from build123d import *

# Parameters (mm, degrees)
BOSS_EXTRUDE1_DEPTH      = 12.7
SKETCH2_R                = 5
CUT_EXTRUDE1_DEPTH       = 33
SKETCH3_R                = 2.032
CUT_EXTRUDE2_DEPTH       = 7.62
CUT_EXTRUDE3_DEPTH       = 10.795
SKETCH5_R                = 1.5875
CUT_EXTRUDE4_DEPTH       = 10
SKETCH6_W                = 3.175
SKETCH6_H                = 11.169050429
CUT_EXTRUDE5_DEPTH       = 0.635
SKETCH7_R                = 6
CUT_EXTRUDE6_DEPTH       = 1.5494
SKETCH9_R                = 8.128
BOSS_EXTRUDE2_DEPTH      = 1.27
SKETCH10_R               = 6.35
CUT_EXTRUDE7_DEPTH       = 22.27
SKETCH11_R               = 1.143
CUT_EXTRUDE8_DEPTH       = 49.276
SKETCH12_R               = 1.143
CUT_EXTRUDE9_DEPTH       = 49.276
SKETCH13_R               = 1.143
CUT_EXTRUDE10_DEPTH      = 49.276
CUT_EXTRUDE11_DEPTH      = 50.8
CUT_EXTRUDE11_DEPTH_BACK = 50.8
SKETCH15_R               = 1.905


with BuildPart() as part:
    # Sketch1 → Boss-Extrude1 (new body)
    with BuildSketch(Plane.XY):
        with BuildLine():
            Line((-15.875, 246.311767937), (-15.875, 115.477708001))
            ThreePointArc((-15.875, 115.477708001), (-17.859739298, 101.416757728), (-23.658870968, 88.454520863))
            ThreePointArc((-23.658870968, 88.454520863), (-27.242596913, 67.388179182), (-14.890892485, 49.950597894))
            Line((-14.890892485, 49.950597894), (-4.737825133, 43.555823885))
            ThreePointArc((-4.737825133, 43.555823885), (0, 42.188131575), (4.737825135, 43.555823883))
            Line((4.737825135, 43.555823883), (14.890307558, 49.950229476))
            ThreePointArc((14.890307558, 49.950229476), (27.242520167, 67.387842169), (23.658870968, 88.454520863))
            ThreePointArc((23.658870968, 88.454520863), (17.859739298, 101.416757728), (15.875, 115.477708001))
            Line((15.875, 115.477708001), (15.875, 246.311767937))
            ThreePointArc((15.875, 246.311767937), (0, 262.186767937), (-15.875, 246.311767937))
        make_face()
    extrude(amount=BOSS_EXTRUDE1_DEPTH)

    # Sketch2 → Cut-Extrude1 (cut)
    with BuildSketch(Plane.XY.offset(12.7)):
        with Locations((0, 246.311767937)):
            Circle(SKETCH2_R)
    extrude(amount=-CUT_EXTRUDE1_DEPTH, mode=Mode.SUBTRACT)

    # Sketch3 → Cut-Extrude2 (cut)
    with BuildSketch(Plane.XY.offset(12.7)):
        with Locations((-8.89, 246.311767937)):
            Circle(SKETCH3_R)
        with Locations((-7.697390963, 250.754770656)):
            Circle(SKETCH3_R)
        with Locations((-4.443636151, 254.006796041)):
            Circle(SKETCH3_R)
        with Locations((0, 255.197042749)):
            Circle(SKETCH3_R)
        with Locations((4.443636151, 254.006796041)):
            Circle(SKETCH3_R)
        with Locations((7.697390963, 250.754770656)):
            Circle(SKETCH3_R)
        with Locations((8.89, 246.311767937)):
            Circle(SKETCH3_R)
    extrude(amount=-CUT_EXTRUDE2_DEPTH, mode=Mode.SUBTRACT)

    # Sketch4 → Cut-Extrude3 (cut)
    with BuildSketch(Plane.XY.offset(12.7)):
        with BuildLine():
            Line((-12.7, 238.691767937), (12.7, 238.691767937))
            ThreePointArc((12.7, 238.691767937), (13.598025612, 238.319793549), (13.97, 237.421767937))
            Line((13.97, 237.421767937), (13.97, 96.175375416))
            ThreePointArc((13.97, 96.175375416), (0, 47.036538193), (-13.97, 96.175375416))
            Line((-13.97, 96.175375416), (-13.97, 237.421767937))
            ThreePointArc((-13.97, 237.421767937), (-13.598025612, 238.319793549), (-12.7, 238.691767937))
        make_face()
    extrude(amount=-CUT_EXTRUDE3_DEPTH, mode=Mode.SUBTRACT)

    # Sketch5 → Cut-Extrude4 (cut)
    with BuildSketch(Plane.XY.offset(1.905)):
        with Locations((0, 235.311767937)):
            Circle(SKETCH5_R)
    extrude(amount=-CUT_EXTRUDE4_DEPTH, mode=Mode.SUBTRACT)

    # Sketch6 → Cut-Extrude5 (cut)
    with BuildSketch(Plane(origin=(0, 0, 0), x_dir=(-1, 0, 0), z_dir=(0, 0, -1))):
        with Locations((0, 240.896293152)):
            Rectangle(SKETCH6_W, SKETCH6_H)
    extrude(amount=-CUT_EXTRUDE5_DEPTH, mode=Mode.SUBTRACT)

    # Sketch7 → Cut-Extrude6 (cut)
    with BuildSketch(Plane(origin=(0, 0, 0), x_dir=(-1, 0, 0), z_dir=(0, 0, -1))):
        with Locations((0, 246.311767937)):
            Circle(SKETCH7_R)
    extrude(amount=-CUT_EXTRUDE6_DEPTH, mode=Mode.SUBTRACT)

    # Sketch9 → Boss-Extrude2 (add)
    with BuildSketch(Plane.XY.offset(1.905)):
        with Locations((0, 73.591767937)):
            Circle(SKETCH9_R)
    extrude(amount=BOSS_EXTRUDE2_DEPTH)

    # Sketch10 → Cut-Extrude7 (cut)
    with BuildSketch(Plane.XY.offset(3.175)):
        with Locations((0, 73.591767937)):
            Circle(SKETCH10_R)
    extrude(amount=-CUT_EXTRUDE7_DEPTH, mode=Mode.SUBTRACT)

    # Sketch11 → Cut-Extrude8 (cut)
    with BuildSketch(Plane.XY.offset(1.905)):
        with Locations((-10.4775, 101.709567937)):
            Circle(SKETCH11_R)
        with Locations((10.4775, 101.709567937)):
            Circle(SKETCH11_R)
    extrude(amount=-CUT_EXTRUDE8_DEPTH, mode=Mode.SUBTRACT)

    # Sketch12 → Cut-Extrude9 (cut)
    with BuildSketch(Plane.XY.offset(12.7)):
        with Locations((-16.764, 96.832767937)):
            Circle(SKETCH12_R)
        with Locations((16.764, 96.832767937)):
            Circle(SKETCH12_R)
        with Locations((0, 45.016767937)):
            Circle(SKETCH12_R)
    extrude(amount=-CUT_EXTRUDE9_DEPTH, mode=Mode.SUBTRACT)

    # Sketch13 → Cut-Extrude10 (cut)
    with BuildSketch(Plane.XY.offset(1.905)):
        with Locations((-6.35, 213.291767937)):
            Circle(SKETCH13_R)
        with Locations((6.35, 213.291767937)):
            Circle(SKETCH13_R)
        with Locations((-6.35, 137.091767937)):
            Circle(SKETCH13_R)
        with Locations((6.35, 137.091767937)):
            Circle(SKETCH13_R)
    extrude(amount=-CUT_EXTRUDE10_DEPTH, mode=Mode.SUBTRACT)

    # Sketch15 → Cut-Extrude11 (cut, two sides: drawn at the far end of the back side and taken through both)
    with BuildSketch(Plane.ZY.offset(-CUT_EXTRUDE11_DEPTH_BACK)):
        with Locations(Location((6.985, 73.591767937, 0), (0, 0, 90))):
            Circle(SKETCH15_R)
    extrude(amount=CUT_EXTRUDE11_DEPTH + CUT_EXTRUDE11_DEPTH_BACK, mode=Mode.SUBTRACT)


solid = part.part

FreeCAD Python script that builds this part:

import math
import FreeCAD as App
import Part
import Sketcher
from FreeCAD import Vector
Q = App.Units.Quantity

doc = App.newDocument("Part")
params = doc.addObject("Spreadsheet::Sheet", "Params")
for row, (alias, value) in enumerate([
    ("sketch1_radius", "2 in"),
    ("sketch1_radius2", "1.1 in"),
    ("sketch1_radius3", "0.35 in"),
    ("sketch1_radius4", "0.625 in"),
    ("pad1_length", "0.5 in"),
    ("pocket1_length", "33 mm"),
    ("sketch3_diameter", "0.16 in"),
    ("pocket2_length", "0.3 in"),
    ("sketch4_width", "1 in"),
    ("sketch4_radius", "0.05 in"),
    ("pocket3_length", "0.425 in"),
    ("sketch5_diameter", "0.125 in"),
    ("pocket4_length", "10 mm"),
    ("sketch6_width", "0.125 in"),
    ("pocket5_length", "0.025 in"),
    ("pocket6_length", "0.061 in"),
    ("sketch8_diameter", "0.64 in"),
    ("pad2_length", "0.05 in"),
    ("sketch9_diameter", "0.5 in"),
    ("pocket7_length", "22.27 mm"),
    ("sketch10_diameter", "0.09 in"),
    ("pocket8_length", "1.94 in"),
    ("sketch11_diameter", "0.09 in"),
    ("pocket9_length", "1.94 in"),
    ("sketch12_diameter", "0.09 in"),
    ("pocket10_length", "1.94 in"),
    ("sketch13_diameter", "0.15 in"),
], start=1):
    params.set(f"A{row}", alias)
    params.set(f"B{row}", "=" + value)
    params.setAlias(f"B{row}", alias)

body = doc.addObject("PartDesign::Body", "Body")

# Sketch on XY plane
sketch1 = doc.addObject("Sketcher::SketchObject", "Sketch")
body.addObject(sketch1)
sketch1.AttachmentSupport = (doc.XY_Plane, [""])
sketch1.MapMode = "FlatFace"
sketch1.addGeometry([
    Part.LineSegment(Vector(-15.875, 246.311768, 0), Vector(-15.875, 115.477708, 0)),  # 0
    Part.ArcOfCircle(Part.Circle(Vector(-66.675, 115.477708, 0), Vector(0, 0, 1), 50.8), math.radians(-32.137473), math.radians(0)),  # 1
    Part.ArcOfCircle(Part.Circle(Vector(0, 73.591768, 0), Vector(0, 0, 1), 27.94), math.radians(147.862527), math.radians(237.794355)),  # 2
    Part.LineSegment(Vector(-14.890892, 49.950598, 0), Vector(-4.737825, 43.555824, 0)),  # 3
    Part.ArcOfCircle(Part.Circle(Vector(0, 51.078132, 0), Vector(0, 0, 1), 8.89), math.radians(-122.204228), math.radians(-57.795772)),  # 4
    Part.LineSegment(Vector(4.737825, 43.555824, 0), Vector(14.890308, 49.950229, 0)),  # 5
    Part.ArcOfCircle(Part.Circle(Vector(0, 73.591768, 0), Vector(0, 0, 1), 27.94), math.radians(-57.795772), math.radians(32.137473)),  # 6
    Part.ArcOfCircle(Part.Circle(Vector(66.675, 115.477708, 0), Vector(0, 0, 1), 50.8), math.radians(-180), math.radians(-147.862527)),  # 7
    Part.LineSegment(Vector(15.875, 115.477708, 0), Vector(15.875, 246.311768, 0)),  # 8
    Part.ArcOfCircle(Part.Circle(Vector(0, 246.311768, 0), Vector(0, 0, 1), 15.875), math.radians(0), math.radians(180)),  # 9
], False)
sketch1.addConstraint([
    Sketcher.Constraint("Tangent", 0, 2, 1, 2),
    Sketcher.Constraint("Tangent", 1, 1, 2, 1),
    Sketcher.Constraint("Coincident", 2, 2, 3, 1),
    Sketcher.Constraint("Tangent", 3, 2, 4, 1),
    Sketcher.Constraint("Tangent", 4, 2, 5, 1),
    Sketcher.Constraint("Tangent", 5, 2, 6, 1),
    Sketcher.Constraint("Tangent", 6, 2, 7, 2),
    Sketcher.Constraint("Tangent", 7, 1, 8, 1),
    Sketcher.Constraint("Tangent", 8, 2, 9, 1),
    Sketcher.Constraint("Tangent", 9, 2, 0, 1),
    Sketcher.Constraint("Vertical", 0),
    Sketcher.Constraint("Vertical", 8),
    Sketcher.Constraint("Coincident", 6, 3, 2, 3),
    Sketcher.Constraint("Equal", 2, 6),
    Sketcher.Constraint("Equal", 1, 7),
    Sketcher.Constraint("Symmetric", 1, 3, 7, 3, -2),
    Sketcher.Constraint("PointOnObject", 4, 3, -2),
    Sketcher.Constraint("Radius", 1, Q("2 in")),
    Sketcher.Constraint("Radius", 2, Q("1.1 in")),
    Sketcher.Constraint("Radius", 4, Q("0.35 in")),
    Sketcher.Constraint("Radius", 9, Q("0.625 in")),
    Sketcher.Constraint("DistanceY", 6, 3, 9, 3, Q("6.8 in")),
    Sketcher.Constraint("Distance", 3, Q("11.99908 mm")),
    Sketcher.Constraint("Distance", 5, Q("11.998388 mm")),
    Sketcher.Constraint("DistanceY", -1, 1, 1, 3, Q("115.477708 mm")),
])
sketch1.setExpression("Constraints[17]", "Params.sketch1_radius")
sketch1.setExpression("Constraints[18]", "Params.sketch1_radius2")
sketch1.setExpression("Constraints[19]", "Params.sketch1_radius3")
sketch1.setExpression("Constraints[20]", "Params.sketch1_radius4")
pad1 = doc.addObject("PartDesign::Pad", "Pad")
body.addObject(pad1)
pad1.Profile = sketch1
pad1.setExpression("Length", "Params.pad1_length")

# Sketch on XY plane
sketch2 = doc.addObject("Sketcher::SketchObject", "Sketch001")
body.addObject(sketch2)
sketch2.AttachmentSupport = (doc.XY_Plane, [""])
sketch2.MapMode = "FlatFace"
sketch2.AttachmentOffset = App.Placement(Vector(0, 0, 0.5 * 25.4), App.Rotation())
sketch2.addGeometry(Part.Circle(Vector(0, 246.311768, 0), Vector(0, 0, 1), 5), False)
sketch2.addConstraint([
    Sketcher.Constraint("PointOnObject", 0, 3, -2),
    Sketcher.Constraint("Diameter", 0, Q("10 mm")),
    Sketcher.Constraint("DistanceY", -1, 1, 0, 3, Q("246.311768 mm")),
])
pocket1 = doc.addObject("PartDesign::Pocket", "Pocket")
body.addObject(pocket1)
pocket1.Profile = sketch2
pocket1.setExpression("Length", "Params.pocket1_length")

# Sketch on XY plane
sketch3 = doc.addObject("Sketcher::SketchObject", "Sketch002")
body.addObject(sketch3)
sketch3.AttachmentSupport = (doc.XY_Plane, [""])
sketch3.MapMode = "FlatFace"
sketch3.AttachmentOffset = App.Placement(Vector(0, 0, 0.5 * 25.4), App.Rotation())
sketch3.addGeometry([
    Part.Circle(Vector(-8.89, 246.311768, 0), Vector(0, 0, 1), 2.032),  # 0
    Part.Circle(Vector(-7.697391, 250.754771, 0), Vector(0, 0, 1), 2.032),  # 1
    Part.Circle(Vector(-4.443636, 254.006796, 0), Vector(0, 0, 1), 2.032),  # 2
    Part.Circle(Vector(0, 255.197043, 0), Vector(0, 0, 1), 2.032),  # 3
    Part.Circle(Vector(4.443636, 254.006796, 0), Vector(0, 0, 1), 2.032),  # 4
    Part.Circle(Vector(7.697391, 250.754771, 0), Vector(0, 0, 1), 2.032),  # 5
    Part.Circle(Vector(8.89, 246.311768, 0), Vector(0, 0, 1), 2.032),  # 6
], False)
sketch3.addConstraint([
    Sketcher.Constraint("Equal", 0, 1),
    Sketcher.Constraint("Equal", 1, 2),
    Sketcher.Constraint("Equal", 2, 3),
    Sketcher.Constraint("Equal", 3, 4),
    Sketcher.Constraint("Equal", 4, 5),
    Sketcher.Constraint("Equal", 5, 6),
    Sketcher.Constraint("Symmetric", 2, 3, 4, 3, -2),
    Sketcher.Constraint("Symmetric", 1, 3, 5, 3, -2),
    Sketcher.Constraint("Symmetric", 0, 3, 6, 3, -2),
    Sketcher.Constraint("PointOnObject", 3, 3, -2),
    Sketcher.Constraint("Diameter", 0, Q("0.16 in")),
    Sketcher.Constraint("DistanceX", 0, 3, -1, 1, Q("0.35 in")),
    Sketcher.Constraint("DistanceX", 1, 3, -1, 1, Q("7.697391 mm")),
    Sketcher.Constraint("DistanceY", -1, 1, 1, 3, Q("250.754771 mm")),
    Sketcher.Constraint("DistanceY", 0, 3, 2, 3, Q("7.695028 mm")),
    Sketcher.Constraint("DistanceY", -1, 1, 0, 3, Q("246.311768 mm")),
    Sketcher.Constraint("DistanceX", 2, 3, -1, 1, Q("4.443636 mm")),
    Sketcher.Constraint("DistanceY", -1, 1, 3, 3, Q("255.197043 mm")),
])
sketch3.setExpression("Constraints[10]", "Params.sketch3_diameter")
pocket2 = doc.addObject("PartDesign::Pocket", "Pocket001")
body.addObject(pocket2)
pocket2.Profile = sketch3
pocket2.setExpression("Length", "Params.pocket2_length")

# Sketch on XY plane
sketch4 = doc.addObject("Sketcher::SketchObject", "Sketch003")
body.addObject(sketch4)
sketch4.AttachmentSupport = (doc.XY_Plane, [""])
sketch4.MapMode = "FlatFace"
sketch4.AttachmentOffset = App.Placement(Vector(0, 0, 0.5 * 25.4), App.Rotation())
sketch4.addGeometry([
    Part.LineSegment(Vector(12.7, 238.691768, 0), Vector(-12.7, 238.691768, 0)),  # 0
    Part.ArcOfCircle(Part.Circle(Vector(-12.7, 237.421768, 0), Vector(0, 0, 1), 1.27), math.radians(90), math.radians(180)),  # 1
    Part.LineSegment(Vector(-13.97, 237.421768, 0), Vector(-13.97, 96.175375, 0)),  # 2
    Part.ArcOfCircle(Part.Circle(Vector(0, 73.591768, 0), Vector(0, 0, 1), 26.55523), math.radians(121.740532), math.radians(418.259468)),  # 3
    Part.LineSegment(Vector(13.97, 96.175375, 0), Vector(13.97, 237.421768, 0)),  # 4
    Part.ArcOfCircle(Part.Circle(Vector(12.7, 237.421768, 0), Vector(0, 0, 1), 1.27), math.radians(0), math.radians(90)),  # 5
], False)
sketch4.addConstraint([
    Sketcher.Constraint("Tangent", 0, 2, 1, 1),
    Sketcher.Constraint("Tangent", 1, 2, 2, 1),
    Sketcher.Constraint("Coincident", 2, 2, 3, 1),
    Sketcher.Constraint("Coincident", 3, 2, 4, 1),
    Sketcher.Constraint("Tangent", 4, 2, 5, 1),
    Sketcher.Constraint("Tangent", 5, 2, 0, 1),
    Sketcher.Constraint("Horizontal", 0),
    Sketcher.Constraint("Vertical", 2),
    Sketcher.Constraint("Vertical", 4),
    Sketcher.Constraint("Equal", 1, 5),
    Sketcher.Constraint("Symmetric", 2, 2, 3, 2, -2),
    Sketcher.Constraint("DistanceX", 0, 2, 0, 1, Q("1 in")),
    Sketcher.Constraint("Radius", 1, Q("0.05 in")),
    Sketcher.Constraint("DistanceY", 3, 3, 0, 2, Q("6.5 in")),
    Sketcher.Constraint("Radius", 3, Q("26.55523 mm")),
    Sketcher.Constraint("DistanceY", -1, 1, 1, 3, Q("237.421768 mm")),
])
sketch4.setExpression("Constraints[11]", "Params.sketch4_width")
sketch4.setExpression("Constraints[12]", "Params.sketch4_radius")
pocket3 = doc.addObject("PartDesign::Pocket", "Pocket002")
body.addObject(pocket3)
pocket3.Profile = sketch4
pocket3.setExpression("Length", "Params.pocket3_length")

# Sketch on XY plane
sketch5 = doc.addObject("Sketcher::SketchObject", "Sketch004")
body.addObject(sketch5)
sketch5.AttachmentSupport = (doc.XY_Plane, [""])
sketch5.MapMode = "FlatFace"
sketch5.AttachmentOffset = App.Placement(Vector(0, 0, 0.075 * 25.4), App.Rotation())
sketch5.addGeometry(Part.Circle(Vector(0, 235.311768, 0), Vector(0, 0, 1), 1.5875), False)
sketch5.addConstraint([
    Sketcher.Constraint("PointOnObject", 0, 3, -2),
    Sketcher.Constraint("Diameter", 0, Q("0.125 in")),
    Sketcher.Constraint("DistanceY", -1, 1, 0, 3, Q("235.311768 mm")),
])
sketch5.setExpression("Constraints[1]", "Params.sketch5_diameter")
pocket4 = doc.addObject("PartDesign::Pocket", "Pocket003")
body.addObject(pocket4)
pocket4.Profile = sketch5
pocket4.setExpression("Length", "Params.pocket4_length")

# Sketch on XY plane
sketch6 = doc.addObject("Sketcher::SketchObject", "Sketch005")
body.addObject(sketch6)
sketch6.AttachmentSupport = (doc.XY_Plane, [""])
sketch6.MapMode = "FlatFace"
sketch6.addGeometry([
    Part.LineSegment(Vector(1.5875, 246.480818, 0), Vector(1.5875, 235.311768, 0)),
    Part.LineSegment(Vector(1.5875, 235.311768, 0), Vector(-1.5875, 235.311768, 0)),
    Part.LineSegment(Vector(-1.5875, 235.311768, 0), Vector(-1.5875, 246.480818, 0)),
    Part.LineSegment(Vector(-1.5875, 246.480818, 0), Vector(1.5875, 246.480818, 0)),
], False)
sketch6.addConstraint([
    Sketcher.Constraint("Coincident", 0, 2, 1, 1),
    Sketcher.Constraint("Coincident", 1, 2, 2, 1),
    Sketcher.Constraint("Coincident", 2, 2, 3, 1),
    Sketcher.Constraint("Coincident", 3, 2, 0, 1),
    Sketcher.Constraint("Vertical", 0),
    Sketcher.Constraint("Horizontal", 1),
    Sketcher.Constraint("Vertical", 2),
    Sketcher.Constraint("Horizontal", 3),
    Sketcher.Constraint("DistanceX", 1, 2, 1, 1, Q("0.125 in")),
    Sketcher.Constraint("DistanceX", -1, 1, 0, 2, Q("0.0625 in")),
    Sketcher.Constraint("DistanceY", 0, 2, 0, 1, Q("11.16905 mm")),
    Sketcher.Constraint("DistanceY", -1, 1, 2, 2, Q("246.480818 mm")),
])
sketch6.setExpression("Constraints[8]", "Params.sketch6_width")
pocket5 = doc.addObject("PartDesign::Pocket", "Pocket004")
body.addObject(pocket5)
pocket5.Profile = sketch6
pocket5.setExpression("Length", "Params.pocket5_length")
pocket5.Reversed = True

# Sketch on XY plane
sketch7 = doc.addObject("Sketcher::SketchObject", "Sketch006")
body.addObject(sketch7)
sketch7.AttachmentSupport = (doc.XY_Plane, [""])
sketch7.MapMode = "FlatFace"
sketch7.addGeometry(Part.Circle(Vector(0, 246.311768, 0), Vector(0, 0, 1), 6), False)
sketch7.addConstraint([
    Sketcher.Constraint("PointOnObject", 0, 3, -2),
    Sketcher.Constraint("Diameter", 0, Q("12 mm")),
    Sketcher.Constraint("DistanceY", -1, 1, 0, 3, Q("246.311768 mm")),
])
pocket6 = doc.addObject("PartDesign::Pocket", "Pocket005")
body.addObject(pocket6)
pocket6.Profile = sketch7
pocket6.setExpression("Length", "Params.pocket6_length")
pocket6.Reversed = True

# Sketch on XY plane
sketch8 = doc.addObject("Sketcher::SketchObject", "Sketch007")
body.addObject(sketch8)
sketch8.AttachmentSupport = (doc.XY_Plane, [""])
sketch8.MapMode = "FlatFace"
sketch8.AttachmentOffset = App.Placement(Vector(0, 0, 0.075 * 25.4), App.Rotation())
sketch8.addGeometry(Part.Circle(Vector(0, 73.591768, 0), Vector(0, 0, 1), 8.128), False)
sketch8.addConstraint([
    Sketcher.Constraint("PointOnObject", 0, 3, -2),
    Sketcher.Constraint("Diameter", 0, Q("0.64 in")),
    Sketcher.Constraint("DistanceY", -1, 1, 0, 3, Q("73.591768 mm")),
])
sketch8.setExpression("Constraints[1]", "Params.sketch8_diameter")
pad2 = doc.addObject("PartDesign::Pad", "Pad001")
body.addObject(pad2)
pad2.Profile = sketch8
pad2.setExpression("Length", "Params.pad2_length")

# Sketch on XY plane
sketch9 = doc.addObject("Sketcher::SketchObject", "Sketch008")
body.addObject(sketch9)
sketch9.AttachmentSupport = (doc.XY_Plane, [""])
sketch9.MapMode = "FlatFace"
sketch9.AttachmentOffset = App.Placement(Vector(0, 0, 0.125 * 25.4), App.Rotation())
sketch9.addGeometry(Part.Circle(Vector(0, 73.591768, 0), Vector(0, 0, 1), 6.35), False)
sketch9.addConstraint([
    Sketcher.Constraint("PointOnObject", 0, 3, -2),
    Sketcher.Constraint("Diameter", 0, Q("0.5 in")),
    Sketcher.Constraint("DistanceY", -1, 1, 0, 3, Q("73.591768 mm")),
])
sketch9.setExpression("Constraints[1]", "Params.sketch9_diameter")
pocket7 = doc.addObject("PartDesign::Pocket", "Pocket006")
body.addObject(pocket7)
pocket7.Profile = sketch9
pocket7.setExpression("Length", "Params.pocket7_length")

# Sketch on XY plane
sketch10 = doc.addObject("Sketcher::SketchObject", "Sketch009")
body.addObject(sketch10)
sketch10.AttachmentSupport = (doc.XY_Plane, [""])
sketch10.MapMode = "FlatFace"
sketch10.AttachmentOffset = App.Placement(Vector(0, 0, 0.075 * 25.4), App.Rotation())
sketch10.addGeometry([
    Part.Circle(Vector(-10.4775, 101.709568, 0), Vector(0, 0, 1), 1.143),
    Part.Circle(Vector(10.4775, 101.709568, 0), Vector(0, 0, 1), 1.143),
], False)
sketch10.addConstraint([
    Sketcher.Constraint("Equal", 0, 1),
    Sketcher.Constraint("Symmetric", 0, 3, 1, 3, -2),
    Sketcher.Constraint("Diameter", 0, Q("0.09 in")),
    Sketcher.Constraint("DistanceX", 0, 3, 1, 3, Q("0.825 in")),
    Sketcher.Constraint("DistanceY", -1, 1, 0, 3, Q("101.709568 mm")),
])
sketch10.setExpression("Constraints[2]", "Params.sketch10_diameter")
pocket8 = doc.addObject("PartDesign::Pocket", "Pocket007")
body.addObject(pocket8)
pocket8.Profile = sketch10
pocket8.setExpression("Length", "Params.pocket8_length")

# Sketch on XY plane
sketch11 = doc.addObject("Sketcher::SketchObject", "Sketch010")
body.addObject(sketch11)
sketch11.AttachmentSupport = (doc.XY_Plane, [""])
sketch11.MapMode = "FlatFace"
sketch11.AttachmentOffset = App.Placement(Vector(0, 0, 0.5 * 25.4), App.Rotation())
sketch11.addGeometry([
    Part.Circle(Vector(-16.764, 96.832768, 0), Vector(0, 0, 1), 1.143),
    Part.Circle(Vector(16.764, 96.832768, 0), Vector(0, 0, 1), 1.143),
    Part.Circle(Vector(0, 45.016768, 0), Vector(0, 0, 1), 1.143),
], False)
sketch11.addConstraint([
    Sketcher.Constraint("Equal", 0, 1),
    Sketcher.Constraint("Equal", 1, 2),
    Sketcher.Constraint("Symmetric", 0, 3, 1, 3, -2),
    Sketcher.Constraint("PointOnObject", 2, 3, -2),
    Sketcher.Constraint("Diameter", 0, Q("0.09 in")),
    Sketcher.Constraint("DistanceX", 0, 3, -1, 1, Q("0.66 in")),
    Sketcher.Constraint("DistanceY", 2, 3, 0, 3, Q("2.04 in")),
    Sketcher.Constraint("DistanceY", -1, 1, 0, 3, Q("96.832768 mm")),
])
sketch11.setExpression("Constraints[4]", "Params.sketch11_diameter")
pocket9 = doc.addObject("PartDesign::Pocket", "Pocket008")
body.addObject(pocket9)
pocket9.Profile = sketch11
pocket9.setExpression("Length", "Params.pocket9_length")

# Sketch on XY plane
sketch12 = doc.addObject("Sketcher::SketchObject", "Sketch011")
body.addObject(sketch12)
sketch12.AttachmentSupport = (doc.XY_Plane, [""])
sketch12.MapMode = "FlatFace"
sketch12.AttachmentOffset = App.Placement(Vector(0, 0, 0.075 * 25.4), App.Rotation())
sketch12.addGeometry([
    Part.Circle(Vector(-6.35, 213.291768, 0), Vector(0, 0, 1), 1.143),
    Part.Circle(Vector(6.35, 213.291768, 0), Vector(0, 0, 1), 1.143),
    Part.Circle(Vector(-6.35, 137.091768, 0), Vector(0, 0, 1), 1.143),
    Part.Circle(Vector(6.35, 137.091768, 0), Vector(0, 0, 1), 1.143),
], False)
sketch12.addConstraint([
    Sketcher.Constraint("Equal", 0, 1),
    Sketcher.Constraint("Equal", 1, 2),
    Sketcher.Constraint("Equal", 2, 3),
    Sketcher.Constraint("Symmetric", 0, 3, 1, 3, -2),
    Sketcher.Constraint("Symmetric", 2, 3, 3, 3, -2),
    Sketcher.Constraint("Vertical", 0, 3, 2, 3),
    Sketcher.Constraint("Diameter", 0, Q("0.09 in")),
    Sketcher.Constraint("DistanceY", 2, 3, 0, 3, Q("3 in")),
    Sketcher.Constraint("DistanceX", 0, 3, 1, 3, Q("0.5 in")),
    Sketcher.Constraint("DistanceY", -1, 1, 0, 3, Q("213.291768 mm")),
])
sketch12.setExpression("Constraints[6]", "Params.sketch12_diameter")
pocket10 = doc.addObject("PartDesign::Pocket", "Pocket009")
body.addObject(pocket10)
pocket10.Profile = sketch12
pocket10.setExpression("Length", "Params.pocket10_length")

# Sketch on YZ plane
sketch13 = doc.addObject("Sketcher::SketchObject", "Sketch012")
body.addObject(sketch13)
sketch13.AttachmentSupport = (doc.YZ_Plane, [""])
sketch13.MapMode = "FlatFace"
sketch13.addGeometry(Part.Circle(Vector(73.591768, 6.985, 0), Vector(0, 0, 1), 1.905), False)
sketch13.addConstraint([
    Sketcher.Constraint("Diameter", 0, Q("0.15 in")),
    Sketcher.Constraint("DistanceY", -1, 1, 0, 3, Q("0.275 in")),
    Sketcher.Constraint("DistanceX", -1, 1, 0, 3, Q("73.591768 mm")),
])
sketch13.setExpression("Constraints[0]", "Params.sketch13_diameter")
pocket11 = doc.addObject("PartDesign::Pocket", "Pocket010")
body.addObject(pocket11)
pocket11.Profile = sketch13
pocket11.Type = "ThroughAll"
pocket11.Midplane = True

doc.recompute()
